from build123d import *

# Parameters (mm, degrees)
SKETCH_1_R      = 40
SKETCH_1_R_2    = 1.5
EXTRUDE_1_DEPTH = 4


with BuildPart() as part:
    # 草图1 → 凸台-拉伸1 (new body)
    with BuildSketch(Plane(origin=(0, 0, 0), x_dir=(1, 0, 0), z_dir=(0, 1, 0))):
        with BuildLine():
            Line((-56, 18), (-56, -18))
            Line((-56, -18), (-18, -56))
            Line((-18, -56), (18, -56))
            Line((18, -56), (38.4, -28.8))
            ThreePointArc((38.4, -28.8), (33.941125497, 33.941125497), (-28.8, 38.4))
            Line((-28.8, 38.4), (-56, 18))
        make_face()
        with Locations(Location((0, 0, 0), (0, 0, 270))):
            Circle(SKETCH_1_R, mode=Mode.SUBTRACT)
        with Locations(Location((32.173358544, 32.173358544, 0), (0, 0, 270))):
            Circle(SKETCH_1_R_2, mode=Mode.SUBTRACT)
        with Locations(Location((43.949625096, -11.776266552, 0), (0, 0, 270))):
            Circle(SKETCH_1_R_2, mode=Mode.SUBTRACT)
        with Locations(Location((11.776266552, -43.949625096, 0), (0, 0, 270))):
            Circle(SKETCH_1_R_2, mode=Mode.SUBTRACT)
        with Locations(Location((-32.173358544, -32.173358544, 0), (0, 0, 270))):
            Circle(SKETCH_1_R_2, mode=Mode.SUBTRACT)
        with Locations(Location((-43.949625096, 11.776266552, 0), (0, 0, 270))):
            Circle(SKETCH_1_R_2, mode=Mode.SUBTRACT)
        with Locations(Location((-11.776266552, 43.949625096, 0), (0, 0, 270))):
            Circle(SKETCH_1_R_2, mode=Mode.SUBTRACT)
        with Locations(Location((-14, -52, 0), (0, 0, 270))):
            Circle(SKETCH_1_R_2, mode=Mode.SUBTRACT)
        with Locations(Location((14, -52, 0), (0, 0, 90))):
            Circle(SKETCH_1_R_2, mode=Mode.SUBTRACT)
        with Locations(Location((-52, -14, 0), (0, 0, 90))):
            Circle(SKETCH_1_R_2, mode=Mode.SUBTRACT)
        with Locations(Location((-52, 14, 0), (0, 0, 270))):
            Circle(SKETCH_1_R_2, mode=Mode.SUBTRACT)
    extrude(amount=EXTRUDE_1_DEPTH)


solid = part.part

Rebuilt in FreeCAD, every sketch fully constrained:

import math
import FreeCAD as App
import Part
import Sketcher
from FreeCAD import Vector
Q = App.Units.Quantity

doc = App.newDocument("Part")
body = doc.addObject("PartDesign::Body", "Body")

sketch1 = doc.addObject("Sketcher::SketchObject", "Sketch")
body.addObject(sketch1)
sketch1.AttachmentSupport = (doc.XZ_Plane, [""])
sketch1.MapMode = "FlatFace"
sketch1.addGeometry([
    Part.LineSegment(Vector(-56, -18, 0), Vector(-56, 18, 0)),
    Part.LineSegment(Vector(-56, 18, 0), Vector(-18, 56, 0)),
    Part.LineSegment(Vector(-18, 56, 0), Vector(18, 56, 0)),
    Part.LineSegment(Vector(18, 56, 0), Vector(38.4, 28.8, 0)),
    Part.ArcOfCircle(Part.Circle(Vector(0, 0, 0), Vector(0, 0, 1), 48), math.radians(-127), math.radians(37)),
    Part.LineSegment(Vector(-28.8, -38.4, 0), Vector(-56, -18, 0)),
    Part.Circle(Vector(-32.2, 32.2, 0), Vector(0, 0, 1), 1.5),
    Part.Circle(Vector(-14, 52, 0), Vector(0, 0, 1), 1.5),
    Part.Circle(Vector(-52, 14, 0), Vector(0, 0, 1), 1.5),
    Part.Circle(Vector(14, 52, 0), Vector(0, 0, 1), 1.5),
    Part.Circle(Vector(11.8, 43.9, 0), Vector(0, 0, 1), 1.5),
    Part.Circle(Vector(43.9, 11.8, 0), Vector(0, 0, 1), 1.5),
    Part.Circle(Vector(-52, -14, 0), Vector(0, 0, 1), 1.5),
    Part.Circle(Vector(-43.9, -11.8, 0), Vector(0, 0, 1), 1.5),
    Part.Circle(Vector(-11.8, -43.9, 0), Vector(0, 0, 1), 1.5),
    Part.Circle(Vector(0, 0, 0), Vector(0, 0, 1), 40),
    Part.Circle(Vector(32.2, -32.2, 0), Vector(0, 0, 1), 1.5),
], False)
sketch1.addConstraint([
    Sketcher.Constraint("Coincident", 0, 2, 1, 1),
    Sketcher.Constraint("Coincident", 1, 2, 2, 1),
    Sketcher.Constraint("Coincident", 2, 2, 3, 1),
    Sketcher.Constraint("Tangent", 3, 2, 4, 2),
    Sketcher.Constraint("Tangent", 4, 1, 5, 1),
    Sketcher.Constraint("Coincident", 5, 2, 0, 1),
    Sketcher.Constraint("Vertical", 0),
    Sketcher.Constraint("Horizontal", 2),
    Sketcher.Constraint("Coincident", 4, 3, -1, 1),
    Sketcher.Constraint("Coincident", 15, 3, -1, 1),
    Sketcher.Constraint("Equal", 6, 7),
    Sketcher.Constraint("Equal", 7, 8),
    Sketcher.Constraint("Equal", 8, 9),
    Sketcher.Constraint("Equal", 9, 10),
    Sketcher.Constraint("Equal", 10, 11),
    Sketcher.Constraint("Equal", 11, 12),
    Sketcher.Constraint("Equal", 12, 13),
    Sketcher.Constraint("Equal", 13, 14),
    Sketcher.Constraint("Equal", 14, 16),
    Sketcher.Constraint("Symmetric", 11, 3, 13, 3, -1, 1),
    Sketcher.Constraint("Symmetric", 10, 3, 14, 3, -1, 1),
    Sketcher.Constraint("Symmetric", 6, 3, 16, 3, -1, 1),
    Sketcher.Constraint("Symmetric", 7, 3, 9, 3, -2),
    Sketcher.Constraint("Symmetric", 8, 3, 12, 3, -1),
    Sketcher.Constraint("Equal", 2, 0),
    Sketcher.Constraint("Equal", 3, 5),
    Sketcher.Constraint("Diameter", 6, 3.0),
    Sketcher.Constraint("Diameter", 15, 80.0),
    Sketcher.Constraint("Radius", 4, 48.0),
    Sketcher.Constraint("DistanceX", 2, 1, 2, 2, 36.0),
    Sketcher.Constraint("Angle", 1, Q("45 deg")),
    Sketcher.Constraint("Distance", 3, 34.0),
    Sketcher.Constraint("DistanceX", 7, 3, -1, 1, 14.0),
    Sketcher.Constraint("DistanceY", -1, 1, 7, 3, 52.0),
    Sketcher.Constraint("DistanceX", 8, 3, -1, 1, 52.0),
    Sketcher.Constraint("DistanceY", -1, 1, 8, 3, 14.0),
    Sketcher.Constraint("DistanceX", 0, 2, -1, 1, 56.0),
    Sketcher.Constraint("DistanceX", 6, 3, -1, 1, 32.173359),
    Sketcher.Constraint("DistanceY", -1, 1, 6, 3, 32.173359),
    Sketcher.Constraint("DistanceX", 10, 3, 11, 3, 32.173359),
    Sketcher.Constraint("DistanceY", 11, 3, 10, 3, 32.173359),
    Sketcher.Constraint("DistanceY", 11, 3, 6, 3, 20.397092),
    Sketcher.Constraint("DistanceX", 14, 3, 11, 3, 55.725892),
])
pad1 = doc.addObject("PartDesign::Pad", "Pad")
body.addObject(pad1)
pad1.Profile = sketch1
pad1.Length = 4
pad1.Reversed = True

doc.recompute()
